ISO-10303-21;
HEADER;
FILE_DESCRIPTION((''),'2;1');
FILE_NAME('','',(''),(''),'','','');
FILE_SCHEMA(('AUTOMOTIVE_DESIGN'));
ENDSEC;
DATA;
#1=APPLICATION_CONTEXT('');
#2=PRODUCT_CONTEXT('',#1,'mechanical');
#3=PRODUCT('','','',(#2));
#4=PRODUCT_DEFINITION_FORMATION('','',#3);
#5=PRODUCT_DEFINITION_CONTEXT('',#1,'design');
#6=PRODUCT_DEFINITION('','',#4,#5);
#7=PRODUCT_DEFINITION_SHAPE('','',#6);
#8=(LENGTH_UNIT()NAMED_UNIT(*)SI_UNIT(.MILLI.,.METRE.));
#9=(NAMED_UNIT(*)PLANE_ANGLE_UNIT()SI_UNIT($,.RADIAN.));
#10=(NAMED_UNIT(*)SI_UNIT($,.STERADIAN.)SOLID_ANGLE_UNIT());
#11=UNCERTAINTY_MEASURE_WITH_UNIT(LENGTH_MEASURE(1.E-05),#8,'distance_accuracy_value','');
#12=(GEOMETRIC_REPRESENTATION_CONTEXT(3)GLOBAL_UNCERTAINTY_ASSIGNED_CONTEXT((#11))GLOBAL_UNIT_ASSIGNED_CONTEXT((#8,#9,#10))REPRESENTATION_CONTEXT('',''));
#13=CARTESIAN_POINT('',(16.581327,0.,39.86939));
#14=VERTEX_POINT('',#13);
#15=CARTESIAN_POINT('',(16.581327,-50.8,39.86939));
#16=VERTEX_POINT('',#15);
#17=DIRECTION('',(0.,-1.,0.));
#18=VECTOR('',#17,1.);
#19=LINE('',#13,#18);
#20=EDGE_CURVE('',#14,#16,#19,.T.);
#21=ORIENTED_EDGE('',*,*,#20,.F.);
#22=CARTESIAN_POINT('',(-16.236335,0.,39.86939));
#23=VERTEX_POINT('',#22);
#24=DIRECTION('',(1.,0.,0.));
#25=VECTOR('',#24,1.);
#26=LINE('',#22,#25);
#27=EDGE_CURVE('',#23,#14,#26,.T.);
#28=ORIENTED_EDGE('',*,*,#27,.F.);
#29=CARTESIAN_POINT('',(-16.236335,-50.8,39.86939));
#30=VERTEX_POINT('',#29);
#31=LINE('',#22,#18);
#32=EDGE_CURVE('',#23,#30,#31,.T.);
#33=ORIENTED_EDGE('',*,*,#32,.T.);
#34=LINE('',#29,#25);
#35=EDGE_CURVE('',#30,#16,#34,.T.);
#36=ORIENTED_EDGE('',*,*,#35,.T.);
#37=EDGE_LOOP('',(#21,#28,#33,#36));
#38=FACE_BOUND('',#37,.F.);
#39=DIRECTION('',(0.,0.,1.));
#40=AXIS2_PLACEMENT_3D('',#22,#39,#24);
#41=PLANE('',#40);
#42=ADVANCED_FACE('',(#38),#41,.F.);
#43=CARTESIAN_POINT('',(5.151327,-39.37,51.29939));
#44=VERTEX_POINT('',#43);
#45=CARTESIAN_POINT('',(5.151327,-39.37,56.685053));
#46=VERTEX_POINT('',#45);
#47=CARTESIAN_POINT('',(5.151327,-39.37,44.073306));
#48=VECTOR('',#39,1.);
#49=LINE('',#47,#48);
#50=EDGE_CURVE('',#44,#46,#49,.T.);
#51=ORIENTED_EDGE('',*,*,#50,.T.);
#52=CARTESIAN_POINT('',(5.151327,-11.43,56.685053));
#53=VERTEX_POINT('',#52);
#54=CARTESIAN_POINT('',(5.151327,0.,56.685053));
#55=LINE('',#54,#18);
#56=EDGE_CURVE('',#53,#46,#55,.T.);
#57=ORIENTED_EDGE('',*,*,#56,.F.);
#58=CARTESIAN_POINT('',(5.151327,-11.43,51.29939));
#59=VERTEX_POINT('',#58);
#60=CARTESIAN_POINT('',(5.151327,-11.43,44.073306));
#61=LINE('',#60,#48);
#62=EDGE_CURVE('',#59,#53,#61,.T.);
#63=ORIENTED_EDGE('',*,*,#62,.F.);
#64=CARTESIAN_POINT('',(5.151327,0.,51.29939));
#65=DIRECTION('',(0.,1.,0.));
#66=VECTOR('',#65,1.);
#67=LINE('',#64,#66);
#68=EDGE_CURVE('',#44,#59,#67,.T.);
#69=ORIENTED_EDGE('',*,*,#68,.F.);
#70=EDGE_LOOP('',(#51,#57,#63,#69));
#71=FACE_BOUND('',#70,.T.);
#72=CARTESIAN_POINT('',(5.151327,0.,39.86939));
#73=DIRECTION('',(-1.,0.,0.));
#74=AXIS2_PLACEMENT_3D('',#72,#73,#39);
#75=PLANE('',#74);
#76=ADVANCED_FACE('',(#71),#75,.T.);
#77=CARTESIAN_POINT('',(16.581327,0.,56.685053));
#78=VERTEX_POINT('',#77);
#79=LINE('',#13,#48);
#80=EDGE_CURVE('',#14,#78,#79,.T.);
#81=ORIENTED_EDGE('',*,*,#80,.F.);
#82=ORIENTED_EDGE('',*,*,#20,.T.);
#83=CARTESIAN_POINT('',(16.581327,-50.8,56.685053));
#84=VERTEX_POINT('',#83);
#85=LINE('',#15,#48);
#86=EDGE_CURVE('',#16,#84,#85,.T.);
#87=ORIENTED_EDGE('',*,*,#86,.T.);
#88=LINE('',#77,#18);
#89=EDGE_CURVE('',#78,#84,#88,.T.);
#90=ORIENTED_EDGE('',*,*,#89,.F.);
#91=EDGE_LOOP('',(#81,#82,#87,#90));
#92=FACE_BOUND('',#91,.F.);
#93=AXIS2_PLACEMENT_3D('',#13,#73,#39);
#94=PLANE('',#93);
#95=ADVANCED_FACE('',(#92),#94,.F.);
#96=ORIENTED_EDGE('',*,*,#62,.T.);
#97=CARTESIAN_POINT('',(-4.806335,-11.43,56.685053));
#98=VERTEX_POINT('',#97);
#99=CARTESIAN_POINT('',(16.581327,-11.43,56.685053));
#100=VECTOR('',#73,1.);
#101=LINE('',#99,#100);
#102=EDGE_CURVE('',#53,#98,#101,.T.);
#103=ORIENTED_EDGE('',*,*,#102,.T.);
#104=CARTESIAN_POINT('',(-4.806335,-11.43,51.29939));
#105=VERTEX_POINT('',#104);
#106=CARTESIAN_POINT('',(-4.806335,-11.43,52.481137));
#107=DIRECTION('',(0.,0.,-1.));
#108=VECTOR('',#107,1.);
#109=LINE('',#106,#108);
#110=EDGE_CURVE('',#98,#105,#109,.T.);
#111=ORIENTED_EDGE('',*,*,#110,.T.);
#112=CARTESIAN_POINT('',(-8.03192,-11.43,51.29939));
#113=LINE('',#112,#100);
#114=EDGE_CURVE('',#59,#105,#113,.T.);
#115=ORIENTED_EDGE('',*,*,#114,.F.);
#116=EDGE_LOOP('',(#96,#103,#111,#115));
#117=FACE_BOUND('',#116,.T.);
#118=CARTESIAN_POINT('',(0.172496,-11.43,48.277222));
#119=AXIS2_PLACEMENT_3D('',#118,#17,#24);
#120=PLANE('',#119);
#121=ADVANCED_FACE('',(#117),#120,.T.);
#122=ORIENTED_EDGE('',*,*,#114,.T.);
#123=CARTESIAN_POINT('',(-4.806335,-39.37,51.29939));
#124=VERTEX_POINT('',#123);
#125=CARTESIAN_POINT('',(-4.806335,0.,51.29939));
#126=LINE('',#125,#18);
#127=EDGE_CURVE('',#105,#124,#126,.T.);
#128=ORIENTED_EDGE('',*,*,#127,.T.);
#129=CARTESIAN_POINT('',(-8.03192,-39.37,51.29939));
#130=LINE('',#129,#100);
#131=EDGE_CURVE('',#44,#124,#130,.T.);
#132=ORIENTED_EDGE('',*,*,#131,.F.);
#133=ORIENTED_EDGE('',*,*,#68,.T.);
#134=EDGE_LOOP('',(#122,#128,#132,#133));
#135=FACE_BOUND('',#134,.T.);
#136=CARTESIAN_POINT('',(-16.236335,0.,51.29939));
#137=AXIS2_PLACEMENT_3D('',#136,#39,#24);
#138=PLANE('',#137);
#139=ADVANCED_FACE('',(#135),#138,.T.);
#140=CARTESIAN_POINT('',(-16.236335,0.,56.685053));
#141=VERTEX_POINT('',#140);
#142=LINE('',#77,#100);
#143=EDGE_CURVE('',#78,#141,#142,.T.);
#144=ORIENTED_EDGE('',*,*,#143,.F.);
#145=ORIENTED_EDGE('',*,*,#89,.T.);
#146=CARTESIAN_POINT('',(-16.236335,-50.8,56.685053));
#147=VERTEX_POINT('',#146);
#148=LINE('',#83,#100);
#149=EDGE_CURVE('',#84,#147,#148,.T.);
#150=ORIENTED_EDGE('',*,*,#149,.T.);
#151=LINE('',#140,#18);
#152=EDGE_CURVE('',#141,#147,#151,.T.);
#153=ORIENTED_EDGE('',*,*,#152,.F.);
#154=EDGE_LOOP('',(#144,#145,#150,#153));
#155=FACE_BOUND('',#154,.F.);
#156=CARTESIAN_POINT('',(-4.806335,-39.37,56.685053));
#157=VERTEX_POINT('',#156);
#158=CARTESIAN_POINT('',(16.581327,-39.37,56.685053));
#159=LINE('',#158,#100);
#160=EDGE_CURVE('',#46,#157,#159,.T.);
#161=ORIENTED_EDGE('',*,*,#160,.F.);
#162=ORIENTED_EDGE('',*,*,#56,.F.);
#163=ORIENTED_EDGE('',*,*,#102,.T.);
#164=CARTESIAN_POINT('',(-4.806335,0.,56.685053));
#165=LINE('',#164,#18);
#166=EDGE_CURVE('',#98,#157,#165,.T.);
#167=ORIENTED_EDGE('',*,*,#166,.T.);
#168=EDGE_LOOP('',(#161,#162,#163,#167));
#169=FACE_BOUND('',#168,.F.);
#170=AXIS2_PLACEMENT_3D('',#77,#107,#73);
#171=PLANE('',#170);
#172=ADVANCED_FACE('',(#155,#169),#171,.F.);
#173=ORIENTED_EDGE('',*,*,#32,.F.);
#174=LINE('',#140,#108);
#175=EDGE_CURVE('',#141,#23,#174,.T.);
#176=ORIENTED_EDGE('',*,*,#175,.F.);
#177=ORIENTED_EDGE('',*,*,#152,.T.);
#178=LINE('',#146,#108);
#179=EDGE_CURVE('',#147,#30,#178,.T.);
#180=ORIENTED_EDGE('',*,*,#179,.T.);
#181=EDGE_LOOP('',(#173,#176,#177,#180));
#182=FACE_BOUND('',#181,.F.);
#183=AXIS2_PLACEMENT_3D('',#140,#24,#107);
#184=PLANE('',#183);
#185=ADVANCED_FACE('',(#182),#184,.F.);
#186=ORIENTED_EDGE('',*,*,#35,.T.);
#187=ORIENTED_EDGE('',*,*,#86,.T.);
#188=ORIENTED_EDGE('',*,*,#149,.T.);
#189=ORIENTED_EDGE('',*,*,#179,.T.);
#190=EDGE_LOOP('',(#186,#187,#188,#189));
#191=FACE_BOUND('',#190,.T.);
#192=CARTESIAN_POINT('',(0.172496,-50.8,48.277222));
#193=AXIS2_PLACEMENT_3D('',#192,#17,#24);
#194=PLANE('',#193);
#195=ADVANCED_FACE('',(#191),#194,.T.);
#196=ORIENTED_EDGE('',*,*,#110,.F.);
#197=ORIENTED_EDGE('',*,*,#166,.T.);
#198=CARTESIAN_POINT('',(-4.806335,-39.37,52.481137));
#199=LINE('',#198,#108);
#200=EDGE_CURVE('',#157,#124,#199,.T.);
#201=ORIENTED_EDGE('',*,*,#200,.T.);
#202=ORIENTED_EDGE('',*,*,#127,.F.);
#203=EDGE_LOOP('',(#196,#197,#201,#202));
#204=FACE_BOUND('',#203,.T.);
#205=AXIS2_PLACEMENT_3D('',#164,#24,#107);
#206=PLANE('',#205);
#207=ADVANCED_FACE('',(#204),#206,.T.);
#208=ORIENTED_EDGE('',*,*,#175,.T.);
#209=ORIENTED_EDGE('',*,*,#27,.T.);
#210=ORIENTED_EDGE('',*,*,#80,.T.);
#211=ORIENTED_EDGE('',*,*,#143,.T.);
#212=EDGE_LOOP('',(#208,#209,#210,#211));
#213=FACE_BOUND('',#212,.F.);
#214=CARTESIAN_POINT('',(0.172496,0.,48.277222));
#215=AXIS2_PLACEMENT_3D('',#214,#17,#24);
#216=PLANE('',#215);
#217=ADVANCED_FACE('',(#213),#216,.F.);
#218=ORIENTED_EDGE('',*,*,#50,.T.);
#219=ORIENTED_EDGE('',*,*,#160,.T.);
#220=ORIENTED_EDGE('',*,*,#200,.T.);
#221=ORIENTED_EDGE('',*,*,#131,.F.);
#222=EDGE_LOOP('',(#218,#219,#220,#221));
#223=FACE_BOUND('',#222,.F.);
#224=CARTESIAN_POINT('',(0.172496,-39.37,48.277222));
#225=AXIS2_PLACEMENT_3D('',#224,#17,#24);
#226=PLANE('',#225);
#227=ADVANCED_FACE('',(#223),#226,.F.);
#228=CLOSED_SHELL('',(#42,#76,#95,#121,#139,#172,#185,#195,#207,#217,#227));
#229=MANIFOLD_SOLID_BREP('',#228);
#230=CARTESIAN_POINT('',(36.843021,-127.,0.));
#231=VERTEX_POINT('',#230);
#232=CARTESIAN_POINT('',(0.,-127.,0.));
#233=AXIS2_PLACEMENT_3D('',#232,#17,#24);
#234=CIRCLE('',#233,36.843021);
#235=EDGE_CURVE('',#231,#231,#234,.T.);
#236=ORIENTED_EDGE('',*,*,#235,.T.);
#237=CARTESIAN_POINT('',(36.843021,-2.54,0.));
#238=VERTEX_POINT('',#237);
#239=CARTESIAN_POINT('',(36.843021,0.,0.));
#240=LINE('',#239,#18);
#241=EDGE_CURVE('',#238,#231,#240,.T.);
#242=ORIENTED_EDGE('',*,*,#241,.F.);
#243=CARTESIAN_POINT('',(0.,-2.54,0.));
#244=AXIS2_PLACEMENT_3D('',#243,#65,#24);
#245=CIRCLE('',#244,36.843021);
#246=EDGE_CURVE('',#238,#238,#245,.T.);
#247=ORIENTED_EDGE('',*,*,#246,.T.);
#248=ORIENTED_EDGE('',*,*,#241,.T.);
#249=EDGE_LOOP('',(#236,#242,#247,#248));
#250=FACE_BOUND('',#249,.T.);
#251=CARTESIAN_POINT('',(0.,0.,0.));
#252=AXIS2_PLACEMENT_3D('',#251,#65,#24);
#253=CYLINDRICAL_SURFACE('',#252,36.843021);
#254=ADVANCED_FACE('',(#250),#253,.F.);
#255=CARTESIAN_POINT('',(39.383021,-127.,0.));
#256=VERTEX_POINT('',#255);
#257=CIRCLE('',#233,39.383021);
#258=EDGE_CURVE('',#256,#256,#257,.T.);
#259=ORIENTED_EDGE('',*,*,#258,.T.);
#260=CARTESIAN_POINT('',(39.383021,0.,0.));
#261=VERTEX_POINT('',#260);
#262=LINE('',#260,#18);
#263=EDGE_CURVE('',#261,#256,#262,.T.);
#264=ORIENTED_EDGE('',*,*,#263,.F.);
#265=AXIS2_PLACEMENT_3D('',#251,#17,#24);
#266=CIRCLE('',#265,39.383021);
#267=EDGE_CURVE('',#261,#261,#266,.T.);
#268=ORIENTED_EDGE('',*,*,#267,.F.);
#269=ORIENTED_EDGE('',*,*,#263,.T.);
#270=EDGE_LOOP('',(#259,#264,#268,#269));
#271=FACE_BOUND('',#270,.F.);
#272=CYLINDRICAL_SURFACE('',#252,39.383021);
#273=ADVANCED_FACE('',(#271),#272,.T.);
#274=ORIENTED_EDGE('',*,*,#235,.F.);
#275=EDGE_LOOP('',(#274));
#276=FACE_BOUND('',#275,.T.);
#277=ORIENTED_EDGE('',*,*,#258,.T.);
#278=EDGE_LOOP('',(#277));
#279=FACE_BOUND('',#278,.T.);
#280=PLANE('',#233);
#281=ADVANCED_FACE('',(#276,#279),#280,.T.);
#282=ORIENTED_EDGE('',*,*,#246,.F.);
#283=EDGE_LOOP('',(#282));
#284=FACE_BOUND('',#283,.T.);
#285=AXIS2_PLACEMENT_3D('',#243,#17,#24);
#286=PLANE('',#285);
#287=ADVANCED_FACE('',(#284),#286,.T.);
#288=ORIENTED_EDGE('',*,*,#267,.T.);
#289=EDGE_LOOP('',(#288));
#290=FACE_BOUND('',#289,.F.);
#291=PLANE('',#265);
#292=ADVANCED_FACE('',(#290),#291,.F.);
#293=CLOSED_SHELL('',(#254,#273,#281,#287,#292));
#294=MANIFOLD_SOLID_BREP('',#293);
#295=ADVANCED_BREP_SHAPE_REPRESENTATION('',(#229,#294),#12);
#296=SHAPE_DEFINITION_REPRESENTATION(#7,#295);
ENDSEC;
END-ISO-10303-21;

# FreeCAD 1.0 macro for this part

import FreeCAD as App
import Part
import Sketcher

V = App.Vector
Q = App.Units.Quantity


def faces_at(feature, points):
    """Names of the faces that lie closest to the given points."""
    faces = feature.Shape.Faces
    near = lambda p: min(range(len(faces)), key=lambda i: faces[i].distToShape(Part.Vertex(*p))[0])
    return sorted({f"Face{near(p) + 1}" for p in points})


def add_polygon(sketch, points):
    """Adds a closed chain of lines whose ends are joined by coincident constraints."""
    first, n = sketch.GeometryCount, len(points)
    for a, b in zip(points, points[1:] + points[:1]):
        sketch.addGeometry(Part.LineSegment(App.Vector(*a, 0), App.Vector(*b, 0)), False)
    for i in range(n):
        sketch.addConstraint(Sketcher.Constraint("Coincident", first + i, 2, first + (i + 1) % n, 1))

doc = App.newDocument("Part")
body = doc.addObject("PartDesign::Body", "Body")

# Sketch on XZ plane
sketch1 = body.newObject("Sketcher::SketchObject", "Sketch")
sketch1.AttachmentSupport = (doc.getObject("XZ_Plane"), [""])
sketch1.MapMode = "FlatFace"
sketch1.addGeometry(Part.Circle(V(0, 0, 0), V(0, 0, 1), 39.383021), False)
sketch1.addConstraint(Sketcher.Constraint("Coincident", 0, 3, -1, 1))
sketch1.addConstraint(Sketcher.Constraint("Diameter", 0, Q("78.766042 mm")))
pad1 = body.newObject("PartDesign::Pad", "Pad")
pad1.Profile = sketch1
pad1.Length = Q("5 in")
doc.recompute()

thickness = body.newObject("PartDesign::Thickness", "Thickness")
thickness.Base = (pad1, faces_at(pad1, [(0, -127, 0)]))
thickness.Value = Q("0.1 in")
thickness.Reversed = True
thickness.Join = "Arc"
body2 = doc.addObject("PartDesign::Body", "Body001")

# Sketch on XZ plane
sketch2 = body2.newObject("Sketcher::SketchObject", "Sketch001")
sketch2.AttachmentSupport = (doc.getObject("XZ_Plane001"), [""])
sketch2.MapMode = "FlatFace"
add_polygon(sketch2, [(-16.236335, 39.86939), (16.581327, 39.86939), (16.581327, 56.685053), (-16.236335, 56.685053)])  # lines 0-3
sketch2.addConstraint(Sketcher.Constraint("Horizontal", 0))
sketch2.addConstraint(Sketcher.Constraint("Vertical", 1))
sketch2.addConstraint(Sketcher.Constraint("Horizontal", 2))
sketch2.addConstraint(Sketcher.Constraint("Vertical", 3))
sketch2.addConstraint(Sketcher.Constraint("DistanceX", 0, 1, 0, 2, Q("32.817662 mm")))
sketch2.addConstraint(Sketcher.Constraint("DistanceY", 1, 1, 1, 2, Q("16.815663 mm")))
sketch2.addConstraint(Sketcher.Constraint("DistanceY", -1, 1, 0, 2, Q("39.86939 mm")))
sketch2.addConstraint(Sketcher.Constraint("DistanceX", -1, 1, 0, 2, Q("16.581327 mm")))
pad2 = body2.newObject("PartDesign::Pad", "Pad001")
pad2.Profile = sketch2
pad2.Length = Q("2 in")
doc.recompute()

thickness2 = body2.newObject("PartDesign::Thickness", "Thickness001")
thickness2.Base = (pad2, faces_at(pad2, [(0.172, -25.4, 56.685)]))
thickness2.Value = Q("0.45 in")
thickness2.Reversed = True
thickness2.Join = "Arc"

doc.recompute()
